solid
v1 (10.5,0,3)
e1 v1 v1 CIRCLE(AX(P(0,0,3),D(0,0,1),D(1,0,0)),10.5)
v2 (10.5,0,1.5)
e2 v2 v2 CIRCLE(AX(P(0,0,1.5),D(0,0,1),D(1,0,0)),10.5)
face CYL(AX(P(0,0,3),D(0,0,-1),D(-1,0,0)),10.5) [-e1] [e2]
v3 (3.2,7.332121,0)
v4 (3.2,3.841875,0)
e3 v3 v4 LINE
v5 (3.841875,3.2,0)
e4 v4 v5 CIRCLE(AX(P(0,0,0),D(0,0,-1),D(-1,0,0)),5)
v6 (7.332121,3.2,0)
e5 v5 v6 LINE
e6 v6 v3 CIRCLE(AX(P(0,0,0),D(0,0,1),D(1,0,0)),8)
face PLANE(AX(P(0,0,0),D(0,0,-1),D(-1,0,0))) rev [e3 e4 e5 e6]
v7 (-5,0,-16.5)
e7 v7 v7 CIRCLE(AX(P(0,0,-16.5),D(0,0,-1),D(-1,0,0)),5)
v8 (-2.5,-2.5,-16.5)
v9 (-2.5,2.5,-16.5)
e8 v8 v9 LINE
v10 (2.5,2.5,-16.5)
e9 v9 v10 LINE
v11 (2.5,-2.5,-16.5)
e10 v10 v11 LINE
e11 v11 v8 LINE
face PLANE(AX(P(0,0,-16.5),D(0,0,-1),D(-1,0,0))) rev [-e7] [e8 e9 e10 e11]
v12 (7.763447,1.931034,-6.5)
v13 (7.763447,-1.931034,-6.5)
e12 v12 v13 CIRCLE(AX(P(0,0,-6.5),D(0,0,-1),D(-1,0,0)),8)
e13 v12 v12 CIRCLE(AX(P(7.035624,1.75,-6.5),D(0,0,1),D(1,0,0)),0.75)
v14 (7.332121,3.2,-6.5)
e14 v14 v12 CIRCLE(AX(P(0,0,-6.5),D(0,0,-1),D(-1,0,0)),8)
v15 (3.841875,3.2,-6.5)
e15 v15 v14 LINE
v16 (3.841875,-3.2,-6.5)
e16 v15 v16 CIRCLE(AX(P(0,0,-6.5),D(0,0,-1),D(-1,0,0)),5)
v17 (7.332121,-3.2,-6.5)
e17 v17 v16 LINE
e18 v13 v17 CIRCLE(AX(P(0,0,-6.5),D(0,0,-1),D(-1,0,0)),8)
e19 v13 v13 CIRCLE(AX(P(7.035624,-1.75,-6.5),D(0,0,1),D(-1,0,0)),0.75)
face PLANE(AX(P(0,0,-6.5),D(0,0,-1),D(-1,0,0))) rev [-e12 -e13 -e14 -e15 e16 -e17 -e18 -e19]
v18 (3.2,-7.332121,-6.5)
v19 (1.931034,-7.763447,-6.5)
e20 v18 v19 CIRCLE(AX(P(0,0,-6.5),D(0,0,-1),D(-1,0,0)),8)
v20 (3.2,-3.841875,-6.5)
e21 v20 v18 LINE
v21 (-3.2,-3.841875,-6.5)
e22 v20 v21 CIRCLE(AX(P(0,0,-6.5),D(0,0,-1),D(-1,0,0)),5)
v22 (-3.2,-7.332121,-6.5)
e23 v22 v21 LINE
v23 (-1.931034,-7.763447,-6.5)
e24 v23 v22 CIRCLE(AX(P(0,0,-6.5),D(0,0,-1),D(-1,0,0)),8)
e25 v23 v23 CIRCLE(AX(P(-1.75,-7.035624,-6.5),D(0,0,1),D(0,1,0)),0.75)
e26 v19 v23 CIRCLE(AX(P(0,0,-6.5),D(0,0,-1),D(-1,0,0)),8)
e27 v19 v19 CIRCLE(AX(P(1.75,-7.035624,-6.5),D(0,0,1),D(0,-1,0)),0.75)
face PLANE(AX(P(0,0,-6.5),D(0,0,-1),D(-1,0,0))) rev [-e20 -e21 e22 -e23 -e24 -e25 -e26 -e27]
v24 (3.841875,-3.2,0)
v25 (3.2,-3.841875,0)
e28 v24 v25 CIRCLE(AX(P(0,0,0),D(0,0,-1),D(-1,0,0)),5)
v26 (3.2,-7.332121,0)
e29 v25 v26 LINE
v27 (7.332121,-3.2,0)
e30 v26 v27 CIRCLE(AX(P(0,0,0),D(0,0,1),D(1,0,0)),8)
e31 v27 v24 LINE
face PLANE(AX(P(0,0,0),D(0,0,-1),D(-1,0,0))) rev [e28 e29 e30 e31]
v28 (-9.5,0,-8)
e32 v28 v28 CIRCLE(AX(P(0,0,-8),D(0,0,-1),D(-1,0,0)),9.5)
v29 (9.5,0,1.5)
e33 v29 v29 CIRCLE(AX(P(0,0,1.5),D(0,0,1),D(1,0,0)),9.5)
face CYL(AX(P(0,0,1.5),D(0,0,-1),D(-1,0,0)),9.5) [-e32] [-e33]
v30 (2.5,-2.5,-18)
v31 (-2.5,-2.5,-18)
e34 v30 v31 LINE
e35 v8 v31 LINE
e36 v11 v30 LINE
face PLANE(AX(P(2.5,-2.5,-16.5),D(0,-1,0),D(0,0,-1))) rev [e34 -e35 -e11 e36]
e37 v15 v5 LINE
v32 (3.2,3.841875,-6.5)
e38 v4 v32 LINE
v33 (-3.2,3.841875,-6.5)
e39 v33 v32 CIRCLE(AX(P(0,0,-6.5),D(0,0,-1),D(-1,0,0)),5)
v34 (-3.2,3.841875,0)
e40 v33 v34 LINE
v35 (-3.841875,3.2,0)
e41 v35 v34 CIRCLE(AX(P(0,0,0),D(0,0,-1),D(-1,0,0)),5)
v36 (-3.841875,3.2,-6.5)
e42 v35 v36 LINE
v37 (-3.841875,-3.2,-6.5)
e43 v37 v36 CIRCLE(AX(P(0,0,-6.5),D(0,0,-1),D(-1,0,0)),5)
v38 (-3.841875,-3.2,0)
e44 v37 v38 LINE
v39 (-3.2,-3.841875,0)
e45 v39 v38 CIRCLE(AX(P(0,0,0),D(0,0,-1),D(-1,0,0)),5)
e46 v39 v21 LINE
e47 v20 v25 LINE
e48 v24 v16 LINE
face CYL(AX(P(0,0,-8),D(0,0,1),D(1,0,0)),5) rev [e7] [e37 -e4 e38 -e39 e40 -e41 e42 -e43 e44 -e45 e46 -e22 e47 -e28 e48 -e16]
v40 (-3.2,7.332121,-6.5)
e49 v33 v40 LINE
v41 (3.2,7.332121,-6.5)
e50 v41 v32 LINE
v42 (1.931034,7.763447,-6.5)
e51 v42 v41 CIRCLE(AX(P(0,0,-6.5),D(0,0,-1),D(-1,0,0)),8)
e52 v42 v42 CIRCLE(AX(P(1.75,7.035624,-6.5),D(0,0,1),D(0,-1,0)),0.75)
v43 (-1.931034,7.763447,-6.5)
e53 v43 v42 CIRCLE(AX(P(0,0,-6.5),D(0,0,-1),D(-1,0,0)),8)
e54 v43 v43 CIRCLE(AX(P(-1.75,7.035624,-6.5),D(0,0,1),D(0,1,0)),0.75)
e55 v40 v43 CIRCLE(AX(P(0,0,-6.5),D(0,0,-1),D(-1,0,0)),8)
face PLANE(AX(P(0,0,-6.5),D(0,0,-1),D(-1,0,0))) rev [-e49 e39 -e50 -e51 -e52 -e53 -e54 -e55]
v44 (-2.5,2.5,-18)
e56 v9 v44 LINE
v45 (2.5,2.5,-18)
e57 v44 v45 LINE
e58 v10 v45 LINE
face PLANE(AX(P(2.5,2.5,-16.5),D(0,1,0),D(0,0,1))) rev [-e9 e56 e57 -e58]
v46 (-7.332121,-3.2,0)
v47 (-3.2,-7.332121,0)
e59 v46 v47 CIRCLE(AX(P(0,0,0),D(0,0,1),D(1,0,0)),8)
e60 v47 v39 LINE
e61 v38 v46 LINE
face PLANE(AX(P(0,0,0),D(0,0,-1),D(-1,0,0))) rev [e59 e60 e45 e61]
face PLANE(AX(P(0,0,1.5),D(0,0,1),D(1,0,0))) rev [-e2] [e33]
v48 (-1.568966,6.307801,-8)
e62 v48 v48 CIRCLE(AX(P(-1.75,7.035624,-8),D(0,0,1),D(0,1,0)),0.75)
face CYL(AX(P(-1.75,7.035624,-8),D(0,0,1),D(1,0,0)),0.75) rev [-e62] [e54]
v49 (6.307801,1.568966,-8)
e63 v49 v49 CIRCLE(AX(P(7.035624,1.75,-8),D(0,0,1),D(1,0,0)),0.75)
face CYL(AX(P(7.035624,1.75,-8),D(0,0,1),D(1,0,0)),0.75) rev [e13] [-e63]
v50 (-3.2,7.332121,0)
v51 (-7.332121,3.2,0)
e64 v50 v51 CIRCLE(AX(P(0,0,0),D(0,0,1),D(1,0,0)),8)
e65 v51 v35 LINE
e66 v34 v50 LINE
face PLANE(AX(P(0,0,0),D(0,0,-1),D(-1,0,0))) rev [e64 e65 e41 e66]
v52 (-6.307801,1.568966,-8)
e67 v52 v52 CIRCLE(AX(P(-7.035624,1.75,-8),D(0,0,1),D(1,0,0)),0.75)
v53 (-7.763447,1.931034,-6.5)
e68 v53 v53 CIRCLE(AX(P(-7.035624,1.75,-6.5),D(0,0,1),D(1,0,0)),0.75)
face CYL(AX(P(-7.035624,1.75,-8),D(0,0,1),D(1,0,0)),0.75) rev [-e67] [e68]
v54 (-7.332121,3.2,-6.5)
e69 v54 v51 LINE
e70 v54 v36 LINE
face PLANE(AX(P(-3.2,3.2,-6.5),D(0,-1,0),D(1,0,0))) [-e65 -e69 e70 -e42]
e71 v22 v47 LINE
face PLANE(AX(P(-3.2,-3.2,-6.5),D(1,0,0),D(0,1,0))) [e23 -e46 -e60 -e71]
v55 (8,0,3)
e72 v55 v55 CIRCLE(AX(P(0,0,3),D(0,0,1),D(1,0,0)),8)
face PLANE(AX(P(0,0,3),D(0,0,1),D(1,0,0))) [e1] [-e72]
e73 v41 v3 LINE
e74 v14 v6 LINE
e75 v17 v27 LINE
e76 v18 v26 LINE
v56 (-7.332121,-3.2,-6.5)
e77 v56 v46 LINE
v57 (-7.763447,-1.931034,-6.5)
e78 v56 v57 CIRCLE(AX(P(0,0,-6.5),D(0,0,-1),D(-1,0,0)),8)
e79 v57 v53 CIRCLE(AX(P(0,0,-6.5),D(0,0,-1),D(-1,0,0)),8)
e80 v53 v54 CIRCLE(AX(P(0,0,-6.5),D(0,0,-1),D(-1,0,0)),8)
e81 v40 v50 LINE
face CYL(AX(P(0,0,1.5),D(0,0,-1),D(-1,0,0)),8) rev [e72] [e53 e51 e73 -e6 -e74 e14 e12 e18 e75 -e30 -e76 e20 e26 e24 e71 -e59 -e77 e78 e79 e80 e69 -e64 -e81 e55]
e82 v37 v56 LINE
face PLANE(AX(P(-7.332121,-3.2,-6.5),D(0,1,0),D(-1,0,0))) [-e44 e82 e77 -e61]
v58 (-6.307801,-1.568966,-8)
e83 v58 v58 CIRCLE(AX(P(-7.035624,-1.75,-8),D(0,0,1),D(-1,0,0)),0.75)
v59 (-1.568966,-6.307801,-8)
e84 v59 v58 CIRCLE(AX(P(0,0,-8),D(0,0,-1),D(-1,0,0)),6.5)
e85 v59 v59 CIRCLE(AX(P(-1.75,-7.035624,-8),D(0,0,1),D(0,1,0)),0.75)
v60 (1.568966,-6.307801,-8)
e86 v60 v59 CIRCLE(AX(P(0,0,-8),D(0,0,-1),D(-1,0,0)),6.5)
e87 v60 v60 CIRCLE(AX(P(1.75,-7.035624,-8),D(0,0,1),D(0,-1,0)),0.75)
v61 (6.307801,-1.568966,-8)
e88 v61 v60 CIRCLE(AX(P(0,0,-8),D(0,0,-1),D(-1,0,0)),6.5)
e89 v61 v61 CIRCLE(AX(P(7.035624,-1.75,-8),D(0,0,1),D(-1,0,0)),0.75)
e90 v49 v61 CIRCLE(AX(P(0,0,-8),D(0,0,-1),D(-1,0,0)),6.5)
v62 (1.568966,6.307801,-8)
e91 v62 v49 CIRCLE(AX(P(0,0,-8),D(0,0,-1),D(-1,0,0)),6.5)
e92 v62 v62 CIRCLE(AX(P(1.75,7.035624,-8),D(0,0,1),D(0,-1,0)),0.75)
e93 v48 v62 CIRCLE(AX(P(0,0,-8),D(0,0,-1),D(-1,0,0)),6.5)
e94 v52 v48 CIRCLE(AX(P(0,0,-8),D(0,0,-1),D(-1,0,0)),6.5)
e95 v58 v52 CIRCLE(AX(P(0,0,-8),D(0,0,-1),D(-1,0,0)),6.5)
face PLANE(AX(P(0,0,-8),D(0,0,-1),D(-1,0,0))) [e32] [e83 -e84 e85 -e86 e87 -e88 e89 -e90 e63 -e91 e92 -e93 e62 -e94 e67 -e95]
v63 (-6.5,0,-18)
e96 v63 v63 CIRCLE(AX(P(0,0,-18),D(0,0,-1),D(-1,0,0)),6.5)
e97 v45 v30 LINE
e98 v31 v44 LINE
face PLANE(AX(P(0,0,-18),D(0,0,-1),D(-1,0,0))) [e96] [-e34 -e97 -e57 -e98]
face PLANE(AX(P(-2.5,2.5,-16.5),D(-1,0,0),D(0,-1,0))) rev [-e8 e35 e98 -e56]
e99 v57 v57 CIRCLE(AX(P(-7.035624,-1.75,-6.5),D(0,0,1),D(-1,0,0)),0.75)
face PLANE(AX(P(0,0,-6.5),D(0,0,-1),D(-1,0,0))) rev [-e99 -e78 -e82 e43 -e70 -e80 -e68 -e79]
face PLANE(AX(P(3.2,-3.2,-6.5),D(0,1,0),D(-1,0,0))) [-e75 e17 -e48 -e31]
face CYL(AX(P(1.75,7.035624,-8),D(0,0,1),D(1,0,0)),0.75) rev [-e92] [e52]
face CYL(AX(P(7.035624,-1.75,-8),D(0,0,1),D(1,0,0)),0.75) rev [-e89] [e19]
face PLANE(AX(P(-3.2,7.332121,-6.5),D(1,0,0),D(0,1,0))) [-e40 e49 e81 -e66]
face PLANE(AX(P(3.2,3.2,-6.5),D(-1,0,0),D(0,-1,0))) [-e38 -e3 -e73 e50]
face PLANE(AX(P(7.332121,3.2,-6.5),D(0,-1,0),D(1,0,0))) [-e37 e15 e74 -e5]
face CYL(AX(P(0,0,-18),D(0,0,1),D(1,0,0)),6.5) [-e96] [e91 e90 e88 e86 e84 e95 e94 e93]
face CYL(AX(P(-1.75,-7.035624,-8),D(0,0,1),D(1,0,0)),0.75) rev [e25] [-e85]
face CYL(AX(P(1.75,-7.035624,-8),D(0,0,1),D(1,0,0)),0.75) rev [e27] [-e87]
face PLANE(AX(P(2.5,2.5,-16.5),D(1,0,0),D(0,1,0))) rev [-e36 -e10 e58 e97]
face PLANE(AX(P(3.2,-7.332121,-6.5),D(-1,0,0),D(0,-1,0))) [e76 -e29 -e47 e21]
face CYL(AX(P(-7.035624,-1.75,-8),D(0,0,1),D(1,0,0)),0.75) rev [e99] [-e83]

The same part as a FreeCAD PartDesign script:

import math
import FreeCAD as App
import Part
import Sketcher
Q = App.Units.Quantity


def add_polygon(sketch, points):
    """Adds a closed chain of lines whose ends are joined by coincident constraints."""
    first, n = sketch.GeometryCount, len(points)
    for a, b in zip(points, points[1:] + points[:1]):
        sketch.addGeometry(Part.LineSegment(App.Vector(*a, 0), App.Vector(*b, 0)), False)
    for i in range(n):
        sketch.addConstraint(Sketcher.Constraint("Coincident", first + i, 2, first + (i + 1) % n, 1))

doc = App.newDocument("Part")
params = doc.addObject("Spreadsheet::Sheet", "Params")
for row, (alias, value) in enumerate([
    ("sketch1_diameter", "19 mm"),
    ("sketch1_diameter2", "16 mm"),
    ("pad1_length", "1.5 mm"),
    ("sketch2_diameter", "21 mm"),
    ("sketch2_diameter2", "16 mm"),
    ("pad2_length", "1.5 mm"),
    ("sketch3_diameter", "19 mm"),
    ("sketch3_radius", "8 mm"),
    ("pad3_length", "6.5 mm"),
    ("sketch4_diameter", "19 mm"),
    ("sketch4_diameter2", "10 mm"),
    ("pad4_length", "1.5 mm"),
    ("sketch5_diameter", "10 mm"),
    ("sketch6_diameter", "1.5 mm"),
    ("sketch7_diameter", "13 mm"),
    ("sketch7_diameter2", "10 mm"),
    ("pad5_length", "10 mm"),
    ("sketch8_diameter", "13 mm"),
    ("sketch8_width", "5 mm"),
    ("pad6_length", "1.5 mm"),
], start=1):
    params.set(f"A{row}", alias)
    params.set(f"B{row}", "=" + value)
    params.setAlias(f"B{row}", alias)

body = doc.addObject("PartDesign::Body", "Body")

# Sketch on XY plane
sketch1 = body.newObject("Sketcher::SketchObject", "Sketch")
sketch1.AttachmentSupport = (doc.getObject("XY_Plane"), [""])
sketch1.MapMode = "FlatFace"
sketch1.addGeometry([
    Part.Circle(App.Vector(0, 0, 0), App.Vector(0, 0, 1), 9.5),
    Part.Circle(App.Vector(0, 0, 0), App.Vector(0, 0, 1), 8),
], False)
sketch1.addConstraint([
    Sketcher.Constraint("Coincident", 0, 3, -1, 1),
    Sketcher.Constraint("Coincident", 1, 3, -1, 1),
    Sketcher.Constraint("Diameter", 0, Q("19 mm")),
    Sketcher.Constraint("Diameter", 1, Q("16 mm")),
])
sketch1.setExpression("Constraints[2]", "Params.sketch1_diameter")
sketch1.setExpression("Constraints[3]", "Params.sketch1_diameter2")
pad1 = body.newObject("PartDesign::Pad", "Pad")
pad1.Profile = sketch1
pad1.setExpression("Length", "Params.pad1_length")

# Sketch on XY plane
sketch2 = body.newObject("Sketcher::SketchObject", "Sketch001")
sketch2.AttachmentSupport = (doc.getObject("XY_Plane"), [""])
sketch2.MapMode = "FlatFace"
sketch2.AttachmentOffset = App.Placement(App.Vector(0, 0, 1.5), App.Rotation())
sketch2.addGeometry([
    Part.Circle(App.Vector(0, 0, 0), App.Vector(0, 0, 1), 10.5),
    Part.Circle(App.Vector(0, 0, 0), App.Vector(0, 0, 1), 8),
], False)
sketch2.addConstraint([
    Sketcher.Constraint("Coincident", 0, 3, -1, 1),
    Sketcher.Constraint("Coincident", 1, 3, -1, 1),
    Sketcher.Constraint("Diameter", 0, Q("21 mm")),
    Sketcher.Constraint("Diameter", 1, Q("16 mm")),
])
sketch2.setExpression("Constraints[2]", "Params.sketch2_diameter")
sketch2.setExpression("Constraints[3]", "Params.sketch2_diameter2")
pad2 = body.newObject("PartDesign::Pad", "Pad001")
pad2.Profile = sketch2
pad2.setExpression("Length", "Params.pad2_length")

# Sketch on XY plane
sketch3 = body.newObject("Sketcher::SketchObject", "Sketch002")
sketch3.AttachmentSupport = (doc.getObject("XY_Plane"), [""])
sketch3.MapMode = "FlatFace"
sketch3.AttachmentOffset = App.Placement(App.Vector(0, 0, -6.5), App.Rotation())
sketch3.addGeometry([
    Part.Circle(App.Vector(0, 0, 0), App.Vector(0, 0, 1), 9.5),  # 0
    Part.ArcOfCircle(Part.Circle(App.Vector(0, 0, 0), App.Vector(0, 0, 1), 8), math.radians(-23.578178), math.radians(23.578178)),  # 1
    Part.LineSegment(App.Vector(7.332121, 3.2, 0), App.Vector(3.2, 3.2, 0)),  # 2
    Part.LineSegment(App.Vector(3.2, 3.2, 0), App.Vector(3.2, 7.332121, 0)),  # 3
    Part.ArcOfCircle(Part.Circle(App.Vector(0, 0, 0), App.Vector(0, 0, 1), 8), math.radians(66.421822), math.radians(113.578178)),  # 4
    Part.LineSegment(App.Vector(-3.2, 7.332121, 0), App.Vector(-3.2, 3.2, 0)),  # 5
    Part.LineSegment(App.Vector(-3.2, 3.2, 0), App.Vector(-7.332121, 3.2, 0)),  # 6
    Part.ArcOfCircle(Part.Circle(App.Vector(0, 0, 0), App.Vector(0, 0, 1), 8), math.radians(156.421822), math.radians(203.578178)),  # 7
    Part.LineSegment(App.Vector(-7.332121, -3.2, 0), App.Vector(-3.2, -3.2, 0)),  # 8
    Part.LineSegment(App.Vector(-3.2, -3.2, 0), App.Vector(-3.2, -7.332121, 0)),  # 9
    Part.ArcOfCircle(Part.Circle(App.Vector(0, 0, 0), App.Vector(0, 0, 1), 8), math.radians(-113.578178), math.radians(-66.421822)),  # 10
    Part.LineSegment(App.Vector(3.2, -7.332121, 0), App.Vector(3.2, -3.2, 0)),  # 11
    Part.LineSegment(App.Vector(3.2, -3.2, 0), App.Vector(7.332121, -3.2, 0)),  # 12
], False)
sketch3.addConstraint([
    Sketcher.Constraint("Coincident", 1, 2, 2, 1),
    Sketcher.Constraint("Coincident", 2, 2, 3, 1),
    Sketcher.Constraint("Coincident", 3, 2, 4, 1),
    Sketcher.Constraint("Coincident", 4, 2, 5, 1),
    Sketcher.Constraint("Coincident", 5, 2, 6, 1),
    Sketcher.Constraint("Coincident", 6, 2, 7, 1),
    Sketcher.Constraint("Coincident", 7, 2, 8, 1),
    Sketcher.Constraint("Coincident", 8, 2, 9, 1),
    Sketcher.Constraint("Coincident", 9, 2, 10, 1),
    Sketcher.Constraint("Coincident", 10, 2, 11, 1),
    Sketcher.Constraint("Coincident", 11, 2, 12, 1),
    Sketcher.Constraint("Coincident", 12, 2, 1, 1),
    Sketcher.Constraint("Horizontal", 2),
    Sketcher.Constraint("Vertical", 3),
    Sketcher.Constraint("Vertical", 5),
    Sketcher.Constraint("Horizontal", 6),
    Sketcher.Constraint("Horizontal", 8),
    Sketcher.Constraint("Vertical", 9),
    Sketcher.Constraint("Vertical", 11),
    Sketcher.Constraint("Horizontal", 12),
    Sketcher.Constraint("Coincident", 0, 3, -1, 1),
    Sketcher.Constraint("Coincident", 1, 3, -1, 1),
    Sketcher.Constraint("Coincident", 4, 3, -1, 1),
    Sketcher.Constraint("Coincident", 7, 3, -1, 1),
    Sketcher.Constraint("Coincident", 10, 3, -1, 1),
    Sketcher.Constraint("Equal", 1, 4),
    Sketcher.Constraint("Equal", 4, 7),
    Sketcher.Constraint("Equal", 7, 10),
    Sketcher.Constraint("Symmetric", 2, 2, 8, 2, -1, 1),
    Sketcher.Constraint("Symmetric", 5, 2, 11, 2, -1, 1),
    Sketcher.Constraint("Symmetric", 2, 2, 5, 2, -2),
    Sketcher.Constraint("Equal", 12, 3),
    Sketcher.Constraint("Diameter", 0, Q("19 mm")),
    Sketcher.Constraint("Radius", 1, Q("8 mm")),
    Sketcher.Constraint("DistanceY", -1, 1, 1, 2, Q("3.2 mm")),
])
sketch3.setExpression("Constraints[32]", "Params.sketch3_diameter")
sketch3.setExpression("Constraints[33]", "Params.sketch3_radius")
pad3 = body.newObject("PartDesign::Pad", "Pad002")
pad3.Profile = sketch3
pad3.setExpression("Length", "Params.pad3_length")

# Sketch on XY plane
sketch4 = body.newObject("Sketcher::SketchObject", "Sketch003")
sketch4.AttachmentSupport = (doc.getObject("XY_Plane"), [""])
sketch4.MapMode = "FlatFace"
sketch4.AttachmentOffset = App.Placement(App.Vector(0, 0, -8), App.Rotation())
sketch4.addGeometry([
    Part.Circle(App.Vector(0, 0, 0), App.Vector(0, 0, 1), 9.5),
    Part.Circle(App.Vector(0, 0, 0), App.Vector(0, 0, 1), 5),
], False)
sketch4.addConstraint([
    Sketcher.Constraint("Coincident", 0, 3, -1, 1),
    Sketcher.Constraint("Coincident", 1, 3, -1, 1),
    Sketcher.Constraint("Diameter", 0, Q("19 mm")),
    Sketcher.Constraint("Diameter", 1, Q("10 mm")),
])
sketch4.setExpression("Constraints[2]", "Params.sketch4_diameter")
sketch4.setExpression("Constraints[3]", "Params.sketch4_diameter2")
pad4 = body.newObject("PartDesign::Pad", "Pad003")
pad4.Profile = sketch4
pad4.setExpression("Length", "Params.pad4_length")

# Sketch on XY plane
sketch5 = body.newObject("Sketcher::SketchObject", "Sketch004")
sketch5.AttachmentSupport = (doc.getObject("XY_Plane"), [""])
sketch5.MapMode = "FlatFace"
sketch5.AttachmentOffset = App.Placement(App.Vector(0, 0, -8), App.Rotation())
sketch5.addGeometry(Part.Circle(App.Vector(0, 0, 0), App.Vector(0, 0, 1), 5), False)
sketch5.addConstraint([
    Sketcher.Constraint("Coincident", 0, 3, -1, 1),
    Sketcher.Constraint("Diameter", 0, Q("10 mm")),
])
sketch5.setExpression("Constraints[1]", "Params.sketch5_diameter")
pocket1 = body.newObject("PartDesign::Pocket", "Pocket")
pocket1.Profile = sketch5
pocket1.Type = "ThroughAll"
pocket1.Reversed = True

# Sketch on XY plane
sketch6 = body.newObject("Sketcher::SketchObject", "Sketch005")
sketch6.AttachmentSupport = (doc.getObject("XY_Plane"), [""])
sketch6.MapMode = "FlatFace"
sketch6.AttachmentOffset = App.Placement(App.Vector(0, 0, -6.5), App.Rotation())
sketch6.addGeometry([
    Part.Circle(App.Vector(7.035624, 1.75, 0), App.Vector(0, 0, 1), 0.75),
    Part.Circle(App.Vector(7.035624, -1.75, 0), App.Vector(0, 0, 1), 0.75),
], False)
sketch6.addConstraint([
    Sketcher.Constraint("Equal", 0, 1),
    Sketcher.Constraint("Symmetric", 0, 3, 1, 3, -1),
    Sketcher.Constraint("Diameter", 0, Q("1.5 mm")),
    Sketcher.Constraint("DistanceY", 1, 3, 0, 3, Q("3.5 mm")),
    Sketcher.Constraint("DistanceX", -1, 1, 0, 3, Q("7.035624 mm")),
])
sketch6.setExpression("Constraints[2]", "Params.sketch6_diameter")
pocket2 = body.newObject("PartDesign::Pocket", "Pocket001")
pocket2.Profile = sketch6
pocket2.Type = "ThroughAll"
doc.recompute()

polarpattern = body.newObject("PartDesign::PolarPattern", "PolarPattern")
polarpattern.Originals = [pocket2]
polarpattern.Axis = (doc.getObject("Z_Axis"), [""])
polarpattern.Angle = 360
polarpattern.Occurrences = 4
body.Tip = polarpattern

# Sketch on XY plane
sketch7 = body.newObject("Sketcher::SketchObject", "Sketch006")
sketch7.AttachmentSupport = (doc.getObject("XY_Plane"), [""])
sketch7.MapMode = "FlatFace"
sketch7.AttachmentOffset = App.Placement(App.Vector(0, 0, -18), App.Rotation())
sketch7.addGeometry([
    Part.Circle(App.Vector(0, 0, 0), App.Vector(0, 0, 1), 6.5),
    Part.Circle(App.Vector(0, 0, 0), App.Vector(0, 0, 1), 5),
], False)
sketch7.addConstraint([
    Sketcher.Constraint("Coincident", 0, 3, -1, 1),
    Sketcher.Constraint("Coincident", 1, 3, -1, 1),
    Sketcher.Constraint("Diameter", 0, Q("13 mm")),
    Sketcher.Constraint("Diameter", 1, Q("10 mm")),
])
sketch7.setExpression("Constraints[2]", "Params.sketch7_diameter")
sketch7.setExpression("Constraints[3]", "Params.sketch7_diameter2")
pad5 = body.newObject("PartDesign::Pad", "Pad004")
pad5.Profile = sketch7
pad5.setExpression("Length", "Params.pad5_length")

# Sketch on XY plane
sketch8 = body.newObject("Sketcher::SketchObject", "Sketch007")
sketch8.AttachmentSupport = (doc.getObject("XY_Plane"), [""])
sketch8.MapMode = "FlatFace"
sketch8.AttachmentOffset = App.Placement(App.Vector(0, 0, -18), App.Rotation())
sketch8.addGeometry(Part.Circle(App.Vector(0, 0, 0), App.Vector(0, 0, 1), 6.5), False)  # 0
add_polygon(sketch8, [(-2.5, -2.5), (2.5, -2.5), (2.5, 2.5), (-2.5, 2.5)])  # lines 1-4
sketch8.addConstraint([
    Sketcher.Constraint("Horizontal", 1),
    Sketcher.Constraint("Vertical", 2),
    Sketcher.Constraint("Horizontal", 3),
    Sketcher.Constraint("Vertical", 4),
    Sketcher.Constraint("Coincident", 0, 3, -1, 1),
    Sketcher.Constraint("Symmetric", 1, 2, 3, 2, -1, 1),
    Sketcher.Constraint("Equal", 3, 2),
    Sketcher.Constraint("Diameter", 0, Q("13 mm")),
    Sketcher.Constraint("DistanceX", 1, 1, 1, 2, Q("5 mm")),
])
sketch8.setExpression("Constraints[11]", "Params.sketch8_diameter")
sketch8.setExpression("Constraints[12]", "Params.sketch8_width")
pad6 = body.newObject("PartDesign::Pad", "Pad005")
pad6.Profile = sketch8
pad6.setExpression("Length", "Params.pad6_length")

doc.recompute()
